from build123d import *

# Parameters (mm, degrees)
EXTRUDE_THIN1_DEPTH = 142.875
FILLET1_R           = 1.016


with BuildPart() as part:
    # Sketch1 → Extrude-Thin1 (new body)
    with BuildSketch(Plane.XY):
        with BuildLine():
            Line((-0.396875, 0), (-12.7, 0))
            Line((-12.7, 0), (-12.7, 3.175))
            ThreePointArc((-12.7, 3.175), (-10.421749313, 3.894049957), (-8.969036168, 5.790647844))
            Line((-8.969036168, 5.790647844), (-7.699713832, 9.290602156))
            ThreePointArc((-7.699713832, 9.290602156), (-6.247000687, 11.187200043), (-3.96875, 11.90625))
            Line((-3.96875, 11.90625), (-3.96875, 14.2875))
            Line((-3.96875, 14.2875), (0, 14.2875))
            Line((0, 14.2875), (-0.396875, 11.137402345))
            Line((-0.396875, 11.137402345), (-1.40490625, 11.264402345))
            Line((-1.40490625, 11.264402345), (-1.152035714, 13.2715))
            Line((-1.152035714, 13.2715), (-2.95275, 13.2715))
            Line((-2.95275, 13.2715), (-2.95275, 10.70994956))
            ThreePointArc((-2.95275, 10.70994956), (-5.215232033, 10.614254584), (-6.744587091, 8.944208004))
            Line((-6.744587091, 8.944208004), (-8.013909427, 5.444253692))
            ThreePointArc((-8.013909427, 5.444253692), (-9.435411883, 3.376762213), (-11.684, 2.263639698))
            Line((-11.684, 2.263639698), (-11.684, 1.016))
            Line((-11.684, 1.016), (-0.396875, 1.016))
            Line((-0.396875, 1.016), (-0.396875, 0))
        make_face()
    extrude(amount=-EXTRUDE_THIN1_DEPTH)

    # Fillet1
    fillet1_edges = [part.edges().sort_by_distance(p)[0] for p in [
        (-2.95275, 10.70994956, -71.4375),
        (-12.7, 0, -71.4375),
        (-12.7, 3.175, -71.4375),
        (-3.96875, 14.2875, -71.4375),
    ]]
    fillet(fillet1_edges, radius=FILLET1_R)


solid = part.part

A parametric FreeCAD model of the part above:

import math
import FreeCAD as App
import Part
import Sketcher

V = App.Vector
Q = App.Units.Quantity


def edges_at(feature, points):
    """Names of the edges that pass closest to the given points."""
    edges = feature.Shape.Edges
    near = lambda p: min(range(len(edges)), key=lambda i: edges[i].distToShape(Part.Vertex(*p))[0])
    return sorted({f"Edge{near(p) + 1}" for p in points})

doc = App.newDocument("Part")
body = doc.addObject("PartDesign::Body", "Body")

sketch1 = body.newObject("Sketcher::SketchObject", "Sketch")
sketch1.AttachmentSupport = (doc.getObject("XY_Plane"), [""])
sketch1.MapMode = "FlatFace"
sketch1.addGeometry([
    Part.LineSegment(V(-12.7, 0, 0), V(-0.4, 0, 0)),
    Part.LineSegment(V(-0.4, 0, 0), V(-0.4, 1, 0)),
    Part.LineSegment(V(-0.4, 1, 0), V(-11.7, 1, 0)),
    Part.LineSegment(V(-11.7, 1, 0), V(-11.7, 2.3, 0)),
    Part.ArcOfCircle(Part.Circle(V(-12.7, 7.1, 0), V(0, 0, 1), 5), math.radians(-78), math.radians(-20)),
    Part.LineSegment(V(-8, 5.4, 0), V(-6.7, 8.9, 0)),
    Part.ArcOfCircle(Part.Circle(V(-4, 7.9, 0), V(0, 0, 1), 3), math.radians(70), math.radians(160)),
    Part.LineSegment(V(-3, 10.7, 0), V(-3, 13.3, 0)),
    Part.LineSegment(V(-3, 13.3, 0), V(-1.2, 13.3, 0)),
    Part.LineSegment(V(-1.2, 13.3, 0), V(-1.4, 11.3, 0)),
    Part.LineSegment(V(-1.4, 11.3, 0), V(-0.4, 11.1, 0)),
    Part.LineSegment(V(-0.4, 11.1, 0), V(0, 14.3, 0)),
    Part.LineSegment(V(0, 14.3, 0), V(-4, 14.3, 0)),
    Part.LineSegment(V(-4, 14.3, 0), V(-4, 11.9, 0)),
    Part.ArcOfCircle(Part.Circle(V(-4, 7.9, 0), V(0, 0, 1), 4), math.radians(90), math.radians(160)),
    Part.LineSegment(V(-7.7, 9.3, 0), V(-9, 5.8, 0)),
    Part.ArcOfCircle(Part.Circle(V(-12.7, 7.1, 0), V(0, 0, 1), 4), math.radians(-90), math.radians(-20)),
    Part.LineSegment(V(-12.7, 3.2, 0), V(-12.7, 0, 0)),
], False)
sketch1.addConstraint([
    Sketcher.Constraint("Coincident", 0, 2, 1, 1),
    Sketcher.Constraint("Coincident", 1, 2, 2, 1),
    Sketcher.Constraint("Coincident", 2, 2, 3, 1),
    Sketcher.Constraint("Coincident", 3, 2, 4, 1),
    Sketcher.Constraint("Tangent", 4, 2, 5, 1),
    Sketcher.Constraint("Tangent", 5, 2, 6, 2),
    Sketcher.Constraint("Coincident", 6, 1, 7, 1),
    Sketcher.Constraint("Coincident", 7, 2, 8, 1),
    Sketcher.Constraint("Coincident", 8, 2, 9, 1),
    Sketcher.Constraint("Coincident", 9, 2, 10, 1),
    Sketcher.Constraint("Coincident", 10, 2, 11, 1),
    Sketcher.Constraint("Coincident", 11, 2, 12, 1),
    Sketcher.Constraint("Coincident", 12, 2, 13, 1),
    Sketcher.Constraint("Coincident", 13, 2, 14, 1),
    Sketcher.Constraint("Tangent", 14, 2, 15, 1),
    Sketcher.Constraint("Tangent", 15, 2, 16, 2),
    Sketcher.Constraint("Coincident", 16, 1, 17, 1),
    Sketcher.Constraint("Coincident", 17, 2, 0, 1),
    Sketcher.Constraint("Horizontal", 0),
    Sketcher.Constraint("Vertical", 1),
    Sketcher.Constraint("Horizontal", 2),
    Sketcher.Constraint("Vertical", 3),
    Sketcher.Constraint("Vertical", 7),
    Sketcher.Constraint("Horizontal", 8),
    Sketcher.Constraint("Horizontal", 12),
    Sketcher.Constraint("Vertical", 13),
    Sketcher.Constraint("Vertical", 17),
    Sketcher.Constraint("Coincident", 14, 3, 6, 3),
    Sketcher.Constraint("Coincident", 16, 3, 4, 3),
    Sketcher.Constraint("Equal", 14, 16),
    Sketcher.Constraint("PointOnObject", 0, 2, -1),
    Sketcher.Constraint("PointOnObject", 11, 2, -2),
    Sketcher.Constraint("Perpendicular", 9, 10),
    Sketcher.Constraint("Perpendicular", 10, 11),
    Sketcher.Constraint("Parallel", 5, 15),
    Sketcher.Constraint("Vertical", 1, 2, 10, 2),
    Sketcher.Constraint("Vertical", 14, 3, 12, 2),
    Sketcher.Constraint("Vertical", 4, 3, 16, 1),
    Sketcher.Constraint("Radius", 14, Q("0.15625 in")),
    Sketcher.Constraint("DistanceY", 1, 1, 1, 2, Q("0.04 in")),
    Sketcher.Constraint("DistanceX", 4, 3, -1, 1, Q("0.5 in")),
    Sketcher.Constraint("Distance", 10, Q("0.04 in")),
    Sketcher.Constraint("DistanceX", 0, 1, 0, 2, Q("0.484375 in")),
    Sketcher.Constraint("DistanceX", 12, 2, 12, 1, Q("0.15625 in")),
    Sketcher.Constraint("DistanceY", 13, 2, 13, 1, Q("0.09375 in")),
    Sketcher.Constraint("DistanceY", 17, 2, 17, 1, Q("0.125 in")),
    Sketcher.Constraint("DistanceX", 2, 2, -1, 1, Q("0.46 in")),
    Sketcher.Constraint("DistanceX", 14, 3, 6, 1, Q("0.04 in")),
    Sketcher.Constraint("DistanceY", 14, 3, 7, 2, Q("0.21 in")),
    Sketcher.Constraint("Distance", 11, Q("0.125 in")),
    Sketcher.Constraint("DistanceY", -1, 1, 6, 3, Q("0.3125 in")),
    Sketcher.Constraint("Radius", 4, 4.98475),
])
pad1 = body.newObject("PartDesign::Pad", "Pad")
pad1.Profile = sketch1
pad1.Length = Q("5.625 in")
pad1.Reversed = True
doc.recompute()

fillet = body.newObject("PartDesign::Fillet", "Fillet")
fillet.Base = (pad1, edges_at(pad1, [
    (-2.953, 10.71, -71.438),
    (-12.7, 0, -71.438),
    (-12.7, 3.175, -71.438),
    (-3.969, 14.287, -71.438),
]))
fillet.Radius = Q("0.04 in")

doc.recompute()
